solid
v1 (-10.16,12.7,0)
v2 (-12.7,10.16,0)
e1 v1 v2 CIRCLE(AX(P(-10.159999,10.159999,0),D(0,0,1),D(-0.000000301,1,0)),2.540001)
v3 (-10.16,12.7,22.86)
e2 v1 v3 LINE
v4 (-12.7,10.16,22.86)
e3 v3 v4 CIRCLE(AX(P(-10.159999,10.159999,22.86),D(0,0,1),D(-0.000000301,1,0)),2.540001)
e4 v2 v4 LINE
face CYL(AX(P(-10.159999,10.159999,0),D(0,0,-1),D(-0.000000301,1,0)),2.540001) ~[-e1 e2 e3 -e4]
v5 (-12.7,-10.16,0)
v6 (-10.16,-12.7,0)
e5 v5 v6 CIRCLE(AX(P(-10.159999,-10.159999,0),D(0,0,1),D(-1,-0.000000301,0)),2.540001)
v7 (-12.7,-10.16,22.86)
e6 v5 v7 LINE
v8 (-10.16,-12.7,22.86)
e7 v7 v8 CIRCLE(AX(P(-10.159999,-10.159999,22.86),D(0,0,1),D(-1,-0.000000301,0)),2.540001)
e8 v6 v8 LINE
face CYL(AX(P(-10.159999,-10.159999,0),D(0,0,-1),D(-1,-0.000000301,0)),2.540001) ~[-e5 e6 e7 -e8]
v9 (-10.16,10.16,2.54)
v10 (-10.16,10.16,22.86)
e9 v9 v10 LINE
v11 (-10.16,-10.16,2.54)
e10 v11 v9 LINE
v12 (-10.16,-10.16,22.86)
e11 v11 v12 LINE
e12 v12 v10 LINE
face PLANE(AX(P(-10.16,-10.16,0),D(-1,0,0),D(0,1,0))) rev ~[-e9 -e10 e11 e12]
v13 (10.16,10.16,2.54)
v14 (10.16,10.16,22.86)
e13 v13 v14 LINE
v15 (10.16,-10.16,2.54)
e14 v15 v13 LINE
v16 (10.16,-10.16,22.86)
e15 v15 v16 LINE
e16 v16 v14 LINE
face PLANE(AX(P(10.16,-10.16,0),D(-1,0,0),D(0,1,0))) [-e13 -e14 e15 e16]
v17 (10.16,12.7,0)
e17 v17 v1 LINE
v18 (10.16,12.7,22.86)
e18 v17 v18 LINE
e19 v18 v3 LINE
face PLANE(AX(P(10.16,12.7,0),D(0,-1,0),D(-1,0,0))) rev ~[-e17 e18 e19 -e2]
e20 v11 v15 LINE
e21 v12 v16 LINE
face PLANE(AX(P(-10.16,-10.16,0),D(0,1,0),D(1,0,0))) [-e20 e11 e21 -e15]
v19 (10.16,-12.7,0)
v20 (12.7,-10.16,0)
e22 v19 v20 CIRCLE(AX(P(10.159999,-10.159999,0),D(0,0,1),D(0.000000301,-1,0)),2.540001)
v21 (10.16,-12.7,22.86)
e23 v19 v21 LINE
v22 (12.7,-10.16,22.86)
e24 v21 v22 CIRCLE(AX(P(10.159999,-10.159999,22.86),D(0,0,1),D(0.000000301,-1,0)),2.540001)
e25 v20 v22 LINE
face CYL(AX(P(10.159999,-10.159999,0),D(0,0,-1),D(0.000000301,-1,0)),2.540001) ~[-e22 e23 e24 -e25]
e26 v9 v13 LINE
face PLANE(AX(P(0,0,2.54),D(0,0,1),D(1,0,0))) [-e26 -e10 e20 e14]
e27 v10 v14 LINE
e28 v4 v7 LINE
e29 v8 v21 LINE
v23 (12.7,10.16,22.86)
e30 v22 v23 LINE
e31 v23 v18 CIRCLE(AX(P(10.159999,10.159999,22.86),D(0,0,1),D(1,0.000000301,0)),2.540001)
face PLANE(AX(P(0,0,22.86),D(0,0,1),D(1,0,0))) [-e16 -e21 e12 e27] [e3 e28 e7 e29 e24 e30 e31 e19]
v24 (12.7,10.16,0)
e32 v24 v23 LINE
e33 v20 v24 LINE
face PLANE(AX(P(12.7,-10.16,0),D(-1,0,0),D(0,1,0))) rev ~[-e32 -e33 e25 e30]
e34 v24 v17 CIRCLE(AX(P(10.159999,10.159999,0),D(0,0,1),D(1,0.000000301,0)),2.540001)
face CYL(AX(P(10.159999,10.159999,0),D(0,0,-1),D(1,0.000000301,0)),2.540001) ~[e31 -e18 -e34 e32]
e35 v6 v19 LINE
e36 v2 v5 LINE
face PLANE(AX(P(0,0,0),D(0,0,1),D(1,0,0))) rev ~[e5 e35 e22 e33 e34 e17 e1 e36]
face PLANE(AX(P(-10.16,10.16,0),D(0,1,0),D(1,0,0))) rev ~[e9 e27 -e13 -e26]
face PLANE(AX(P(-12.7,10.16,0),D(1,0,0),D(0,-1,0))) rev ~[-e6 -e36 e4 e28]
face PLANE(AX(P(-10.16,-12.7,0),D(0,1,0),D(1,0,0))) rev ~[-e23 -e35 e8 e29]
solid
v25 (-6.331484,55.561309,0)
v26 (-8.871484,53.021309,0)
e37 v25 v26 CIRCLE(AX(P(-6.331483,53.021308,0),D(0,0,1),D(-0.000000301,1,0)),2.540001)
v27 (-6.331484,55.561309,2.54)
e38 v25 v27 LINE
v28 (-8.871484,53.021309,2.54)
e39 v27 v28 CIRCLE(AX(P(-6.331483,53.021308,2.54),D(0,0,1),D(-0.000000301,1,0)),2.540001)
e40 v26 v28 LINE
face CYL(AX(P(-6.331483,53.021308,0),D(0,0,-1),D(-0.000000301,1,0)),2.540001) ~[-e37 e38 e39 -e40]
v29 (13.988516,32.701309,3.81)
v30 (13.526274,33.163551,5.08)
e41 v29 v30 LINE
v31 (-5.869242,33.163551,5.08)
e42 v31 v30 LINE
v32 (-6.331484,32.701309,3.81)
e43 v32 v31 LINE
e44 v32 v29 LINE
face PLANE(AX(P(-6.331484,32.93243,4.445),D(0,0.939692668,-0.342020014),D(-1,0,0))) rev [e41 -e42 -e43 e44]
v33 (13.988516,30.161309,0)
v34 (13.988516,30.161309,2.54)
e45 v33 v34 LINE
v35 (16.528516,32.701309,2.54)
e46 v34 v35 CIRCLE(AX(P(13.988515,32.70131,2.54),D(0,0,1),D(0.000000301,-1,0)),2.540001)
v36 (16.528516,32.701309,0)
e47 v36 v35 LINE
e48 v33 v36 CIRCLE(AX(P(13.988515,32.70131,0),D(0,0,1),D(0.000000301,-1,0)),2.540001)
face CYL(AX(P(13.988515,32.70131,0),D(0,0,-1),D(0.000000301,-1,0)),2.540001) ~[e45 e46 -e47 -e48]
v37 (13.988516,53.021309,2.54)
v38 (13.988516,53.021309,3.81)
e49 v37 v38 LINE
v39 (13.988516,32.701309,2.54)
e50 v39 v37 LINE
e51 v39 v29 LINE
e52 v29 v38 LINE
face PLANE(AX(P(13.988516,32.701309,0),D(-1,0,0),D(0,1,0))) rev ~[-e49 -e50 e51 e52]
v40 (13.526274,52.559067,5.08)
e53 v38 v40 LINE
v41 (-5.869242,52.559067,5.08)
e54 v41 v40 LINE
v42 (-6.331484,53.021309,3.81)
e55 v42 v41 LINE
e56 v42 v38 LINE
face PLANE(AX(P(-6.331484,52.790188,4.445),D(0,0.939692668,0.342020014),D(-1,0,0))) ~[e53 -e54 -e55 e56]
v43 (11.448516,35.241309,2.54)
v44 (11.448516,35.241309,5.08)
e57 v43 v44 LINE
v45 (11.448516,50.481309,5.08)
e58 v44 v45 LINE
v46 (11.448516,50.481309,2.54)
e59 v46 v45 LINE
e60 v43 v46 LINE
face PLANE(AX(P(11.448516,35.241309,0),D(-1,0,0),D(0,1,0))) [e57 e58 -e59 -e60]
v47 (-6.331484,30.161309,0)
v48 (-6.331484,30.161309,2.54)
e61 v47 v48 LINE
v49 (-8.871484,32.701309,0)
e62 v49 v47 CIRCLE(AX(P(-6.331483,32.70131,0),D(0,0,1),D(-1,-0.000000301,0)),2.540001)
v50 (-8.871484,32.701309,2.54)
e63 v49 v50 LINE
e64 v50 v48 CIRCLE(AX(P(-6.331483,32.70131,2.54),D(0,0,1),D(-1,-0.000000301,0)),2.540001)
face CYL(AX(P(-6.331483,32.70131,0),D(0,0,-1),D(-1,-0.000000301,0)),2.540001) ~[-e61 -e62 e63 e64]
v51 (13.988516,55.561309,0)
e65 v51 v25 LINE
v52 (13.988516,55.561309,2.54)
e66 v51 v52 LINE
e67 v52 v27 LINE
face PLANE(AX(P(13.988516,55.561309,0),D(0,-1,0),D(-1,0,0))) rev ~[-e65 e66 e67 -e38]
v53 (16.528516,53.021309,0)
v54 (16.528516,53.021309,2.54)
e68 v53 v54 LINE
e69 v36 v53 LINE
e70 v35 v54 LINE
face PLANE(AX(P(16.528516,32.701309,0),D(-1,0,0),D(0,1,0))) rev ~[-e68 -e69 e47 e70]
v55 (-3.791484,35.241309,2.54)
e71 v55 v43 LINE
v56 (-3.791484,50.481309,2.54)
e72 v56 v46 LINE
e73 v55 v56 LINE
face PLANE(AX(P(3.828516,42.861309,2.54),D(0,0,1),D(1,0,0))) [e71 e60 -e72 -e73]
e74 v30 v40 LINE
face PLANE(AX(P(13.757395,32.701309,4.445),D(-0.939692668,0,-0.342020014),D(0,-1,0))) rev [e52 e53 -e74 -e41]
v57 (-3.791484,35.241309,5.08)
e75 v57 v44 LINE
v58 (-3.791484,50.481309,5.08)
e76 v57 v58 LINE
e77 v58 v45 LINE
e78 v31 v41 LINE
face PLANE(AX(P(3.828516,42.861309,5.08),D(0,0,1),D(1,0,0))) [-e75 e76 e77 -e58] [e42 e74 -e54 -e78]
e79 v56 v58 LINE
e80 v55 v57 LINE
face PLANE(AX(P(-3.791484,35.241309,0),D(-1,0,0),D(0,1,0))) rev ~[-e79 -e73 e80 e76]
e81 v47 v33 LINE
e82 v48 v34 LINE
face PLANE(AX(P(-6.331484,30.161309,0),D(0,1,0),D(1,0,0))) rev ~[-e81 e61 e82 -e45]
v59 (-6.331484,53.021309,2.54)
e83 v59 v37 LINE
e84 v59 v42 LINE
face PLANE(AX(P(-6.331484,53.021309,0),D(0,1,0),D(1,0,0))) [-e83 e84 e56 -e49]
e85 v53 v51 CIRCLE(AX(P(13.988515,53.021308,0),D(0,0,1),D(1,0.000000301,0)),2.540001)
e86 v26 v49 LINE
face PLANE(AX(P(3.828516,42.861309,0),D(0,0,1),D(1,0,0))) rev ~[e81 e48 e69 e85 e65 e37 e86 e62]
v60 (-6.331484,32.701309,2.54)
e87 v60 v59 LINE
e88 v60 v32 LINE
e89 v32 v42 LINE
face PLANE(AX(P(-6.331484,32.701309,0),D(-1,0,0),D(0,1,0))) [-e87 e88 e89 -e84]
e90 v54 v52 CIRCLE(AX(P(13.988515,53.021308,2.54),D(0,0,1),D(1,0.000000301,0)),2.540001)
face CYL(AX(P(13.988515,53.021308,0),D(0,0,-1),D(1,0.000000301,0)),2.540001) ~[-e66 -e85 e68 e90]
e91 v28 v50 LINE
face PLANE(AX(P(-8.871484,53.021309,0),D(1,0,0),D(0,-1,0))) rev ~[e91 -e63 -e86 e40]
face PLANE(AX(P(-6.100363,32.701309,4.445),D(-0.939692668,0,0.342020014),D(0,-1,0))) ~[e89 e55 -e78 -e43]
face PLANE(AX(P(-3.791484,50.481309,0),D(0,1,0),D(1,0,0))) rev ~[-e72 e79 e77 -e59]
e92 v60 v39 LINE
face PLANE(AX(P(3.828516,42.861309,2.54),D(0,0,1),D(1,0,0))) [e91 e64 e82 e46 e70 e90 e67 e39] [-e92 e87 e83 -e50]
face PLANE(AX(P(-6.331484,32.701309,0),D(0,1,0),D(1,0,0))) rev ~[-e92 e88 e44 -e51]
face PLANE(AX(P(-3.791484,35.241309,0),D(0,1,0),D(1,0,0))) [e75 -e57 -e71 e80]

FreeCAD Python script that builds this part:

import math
import FreeCAD as App
import Part
import Sketcher
from FreeCAD import Vector
Q = App.Units.Quantity


def edges_at(feature, points):
    """Names of the edges that pass closest to the given points."""
    edges = feature.Shape.Edges
    near = lambda p: min(range(len(edges)), key=lambda i: edges[i].distToShape(Part.Vertex(*p))[0])
    return sorted({f"Edge{near(p) + 1}" for p in points})


def add_polygon(sketch, points):
    """Adds a closed chain of lines whose ends are joined by coincident constraints."""
    first, n = sketch.GeometryCount, len(points)
    for a, b in zip(points, points[1:] + points[:1]):
        sketch.addGeometry(Part.LineSegment(App.Vector(*a, 0), App.Vector(*b, 0)), False)
    for i in range(n):
        sketch.addConstraint(Sketcher.Constraint("Coincident", first + i, 2, first + (i + 1) % n, 1))

doc = App.newDocument("Part")
params = doc.addObject("Spreadsheet::Sheet", "Params")
for row, (alias, value) in enumerate([
    ("sketch1_radius", "0.1 in"),
    ("sketch1_width", "0.8 in"),
    ("pad1_length", "0.9 in"),
    ("sketch2_width", "0.8 in"),
    ("pad2_length", "0.1 in"),
    ("sketch3_radius", "0.1 in"),
    ("sketch3_width", "0.8 in"),
    ("pad3_length", "0.1 in"),
    ("sketch4_width", "0.8 in"),
    ("sketch4_width2", "0.6 in"),
    ("pad4_length", "0.2 in"),
    ("sketch5_width", "0.6 in"),
    ("pad5_length", "0.1 in"),
    ("chamfer_size", "0.05 in"),
    ("chamfer_size2", "0.462242 mm"),
], start=1):
    params.set(f"A{row}", alias)
    params.set(f"B{row}", "=" + value)
    params.setAlias(f"B{row}", alias)

body = doc.addObject("PartDesign::Body", "Body")

# Sketch on XY plane
sketch1 = body.newObject("Sketcher::SketchObject", "Sketch")
sketch1.AttachmentSupport = (doc.getObject("XY_Plane"), [""])
sketch1.MapMode = "FlatFace"
sketch1.addGeometry(Part.LineSegment(Vector(10.16, 12.7, 0), Vector(-10.16, 12.7, 0)), False)  # 0
sketch1.addGeometry(Part.ArcOfCircle(Part.Circle(Vector(-10.159999, 10.159999, 0), Vector(0, 0, 1), 2.540001), math.radians(90.000017), math.radians(179.999983)), False)  # 1
sketch1.addGeometry(Part.LineSegment(Vector(-12.7, 10.16, 0), Vector(-12.7, -10.16, 0)), False)  # 2
sketch1.addGeometry(Part.ArcOfCircle(Part.Circle(Vector(-10.159999, -10.159999, 0), Vector(0, 0, 1), 2.540001), math.radians(-179.999983), math.radians(-90.000017)), False)  # 3
sketch1.addGeometry(Part.LineSegment(Vector(-10.16, -12.7, 0), Vector(10.16, -12.7, 0)), False)  # 4
sketch1.addGeometry(Part.ArcOfCircle(Part.Circle(Vector(10.159999, -10.159999, 0), Vector(0, 0, 1), 2.540001), math.radians(-89.999983), math.radians(-0.000017)), False)  # 5
sketch1.addGeometry(Part.LineSegment(Vector(12.7, -10.16, 0), Vector(12.7, 10.16, 0)), False)  # 6
sketch1.addGeometry(Part.ArcOfCircle(Part.Circle(Vector(10.159999, 10.159999, 0), Vector(0, 0, 1), 2.540001), math.radians(0.000017), math.radians(89.999983)), False)  # 7
add_polygon(sketch1, [(10.16, -10.16), (-10.16, -10.16), (-10.16, 10.16), (10.16, 10.16)])  # lines 8-11
sketch1.addConstraint([
    Sketcher.Constraint("Tangent", 0, 2, 1, 1),
    Sketcher.Constraint("Tangent", 1, 2, 2, 1),
    Sketcher.Constraint("Tangent", 2, 2, 3, 1),
    Sketcher.Constraint("Tangent", 3, 2, 4, 1),
    Sketcher.Constraint("Tangent", 4, 2, 5, 1),
    Sketcher.Constraint("Tangent", 5, 2, 6, 1),
    Sketcher.Constraint("Tangent", 6, 2, 7, 1),
    Sketcher.Constraint("Tangent", 7, 2, 0, 1),
    Sketcher.Constraint("Horizontal", 0),
    Sketcher.Constraint("Vertical", 2),
    Sketcher.Constraint("Horizontal", 4),
    Sketcher.Constraint("Vertical", 6),
    Sketcher.Constraint("Horizontal", 8),
    Sketcher.Constraint("Vertical", 9),
    Sketcher.Constraint("Horizontal", 10),
    Sketcher.Constraint("Vertical", 11),
    Sketcher.Constraint("Coincident", 8, 2, 3, 3),
    Sketcher.Constraint("Coincident", 9, 2, 1, 3),
    Sketcher.Constraint("Coincident", 10, 2, 7, 3),
    Sketcher.Constraint("Equal", 3, 5),
    Sketcher.Constraint("Symmetric", 1, 3, 5, 3, -1, 1),
    Sketcher.Constraint("Equal", 10, 2),
    Sketcher.Constraint("Radius", 1, Q("0.1 in")),
    Sketcher.Constraint("DistanceX", 0, 2, 0, 1, Q("0.8 in")),
])
sketch1.setExpression("Constraints[26]", "Params.sketch1_radius")
sketch1.setExpression("Constraints[27]", "Params.sketch1_width")
pad1 = body.newObject("PartDesign::Pad", "Pad")
pad1.Profile = sketch1
pad1.setExpression("Length", "Params.pad1_length")

# Sketch on XY plane
sketch2 = body.newObject("Sketcher::SketchObject", "Sketch001")
sketch2.AttachmentSupport = (doc.getObject("XY_Plane"), [""])
sketch2.MapMode = "FlatFace"
add_polygon(sketch2, [(-10.16, 10.16), (-10.16, -10.16), (10.16, -10.16), (10.16, 10.16)])  # lines 0-3
sketch2.addConstraint([
    Sketcher.Constraint("Vertical", 0),
    Sketcher.Constraint("Horizontal", 1),
    Sketcher.Constraint("Vertical", 2),
    Sketcher.Constraint("Horizontal", 3),
    Sketcher.Constraint("Symmetric", 0, 2, 2, 2, -1, 1),
    Sketcher.Constraint("Equal", 3, 0),
    Sketcher.Constraint("DistanceX", 1, 1, 1, 2, Q("0.8 in")),
])
sketch2.setExpression("Constraints[10]", "Params.sketch2_width")
pad2 = body.newObject("PartDesign::Pad", "Pad001")
pad2.Profile = sketch2
pad2.setExpression("Length", "Params.pad2_length")
body2 = doc.addObject("PartDesign::Body", "Body001")

# Sketch on XY plane
sketch3 = body2.newObject("Sketcher::SketchObject", "Sketch002")
sketch3.AttachmentSupport = (doc.getObject("XY_Plane001"), [""])
sketch3.MapMode = "FlatFace"
sketch3.addGeometry(Part.LineSegment(Vector(13.988516, 55.561309, 0), Vector(-6.331484, 55.561309, 0)), False)  # 0
sketch3.addGeometry(Part.ArcOfCircle(Part.Circle(Vector(-6.331483, 53.021308, 0), Vector(0, 0, 1), 2.540001), math.radians(90.000017), math.radians(179.999983)), False)  # 1
sketch3.addGeometry(Part.LineSegment(Vector(-8.871484, 53.021309, 0), Vector(-8.871484, 32.701309, 0)), False)  # 2
sketch3.addGeometry(Part.ArcOfCircle(Part.Circle(Vector(-6.331483, 32.70131, 0), Vector(0, 0, 1), 2.540001), math.radians(-179.999983), math.radians(-90.000017)), False)  # 3
sketch3.addGeometry(Part.LineSegment(Vector(-6.331484, 30.161309, 0), Vector(13.988516, 30.161309, 0)), False)  # 4
sketch3.addGeometry(Part.ArcOfCircle(Part.Circle(Vector(13.988515, 32.70131, 0), Vector(0, 0, 1), 2.540001), math.radians(-89.999983), math.radians(-0.000017)), False)  # 5
sketch3.addGeometry(Part.LineSegment(Vector(16.528516, 32.701309, 0), Vector(16.528516, 53.021309, 0)), False)  # 6
sketch3.addGeometry(Part.ArcOfCircle(Part.Circle(Vector(13.988515, 53.021308, 0), Vector(0, 0, 1), 2.540001), math.radians(0.000017), math.radians(89.999983)), False)  # 7
add_polygon(sketch3, [(13.988516, 32.701309), (-6.331484, 32.701309), (-6.331484, 53.021309), (13.988516, 53.021309)])  # lines 8-11
sketch3.addConstraint([
    Sketcher.Constraint("Tangent", 0, 2, 1, 1),
    Sketcher.Constraint("Tangent", 1, 2, 2, 1),
    Sketcher.Constraint("Tangent", 2, 2, 3, 1),
    Sketcher.Constraint("Tangent", 3, 2, 4, 1),
    Sketcher.Constraint("Tangent", 4, 2, 5, 1),
    Sketcher.Constraint("Tangent", 5, 2, 6, 1),
    Sketcher.Constraint("Tangent", 6, 2, 7, 1),
    Sketcher.Constraint("Tangent", 7, 2, 0, 1),
    Sketcher.Constraint("Horizontal", 0),
    Sketcher.Constraint("Vertical", 2),
    Sketcher.Constraint("Horizontal", 4),
    Sketcher.Constraint("Vertical", 6),
    Sketcher.Constraint("Horizontal", 8),
    Sketcher.Constraint("Vertical", 9),
    Sketcher.Constraint("Horizontal", 10),
    Sketcher.Constraint("Vertical", 11),
    Sketcher.Constraint("Coincident", 8, 2, 3, 3),
    Sketcher.Constraint("Coincident", 9, 2, 1, 3),
    Sketcher.Constraint("Coincident", 10, 2, 7, 3),
    Sketcher.Constraint("Equal", 3, 5),
    Sketcher.Constraint("Equal", 10, 2),
    Sketcher.Constraint("Radius", 1, Q("0.1 in")),
    Sketcher.Constraint("DistanceX", 0, 2, 0, 1, Q("0.8 in")),
    Sketcher.Constraint("DistanceY", -1, 1, 1, 3, 53.021308),
    Sketcher.Constraint("DistanceX", 1, 3, -1, 1, 6.331483),
])
sketch3.setExpression("Constraints[25]", "Params.sketch3_radius")
sketch3.setExpression("Constraints[26]", "Params.sketch3_width")
pad3 = body2.newObject("PartDesign::Pad", "Pad002")
pad3.Profile = sketch3
pad3.setExpression("Length", "Params.pad3_length")

# Sketch on XY plane
sketch4 = body2.newObject("Sketcher::SketchObject", "Sketch003")
sketch4.AttachmentSupport = (doc.getObject("XY_Plane001"), [""])
sketch4.MapMode = "FlatFace"
add_polygon(sketch4, [(-6.331484, 53.021309), (-6.331484, 32.701309), (13.988516, 32.701309), (13.988516, 53.021309)])  # lines 0-3
add_polygon(sketch4, [(11.448516, 35.241309), (-3.791484, 35.241309), (-3.791484, 50.481309), (11.448516, 50.481309)])  # lines 4-7
sketch4.addConstraint([
    Sketcher.Constraint("Vertical", 0),
    Sketcher.Constraint("Horizontal", 1),
    Sketcher.Constraint("Vertical", 2),
    Sketcher.Constraint("Horizontal", 3),
    Sketcher.Constraint("Horizontal", 4),
    Sketcher.Constraint("Vertical", 5),
    Sketcher.Constraint("Horizontal", 6),
    Sketcher.Constraint("Vertical", 7),
    Sketcher.Constraint("Equal", 3, 0),
    Sketcher.Constraint("Equal", 6, 5),
    Sketcher.Constraint("DistanceX", 1, 1, 1, 2, Q("0.8 in")),
    Sketcher.Constraint("DistanceX", 4, 2, 4, 1, Q("0.6 in")),
    Sketcher.Constraint("DistanceX", 0, 2, 4, 2, Q("0.1 in")),
    Sketcher.Constraint("DistanceY", 0, 2, 4, 2, Q("0.1 in")),
    Sketcher.Constraint("DistanceY", -1, 1, 0, 2, 32.701309),
    Sketcher.Constraint("DistanceX", 0, 2, -1, 1, 6.331484),
])
sketch4.setExpression("Constraints[18]", "Params.sketch4_width")
sketch4.setExpression("Constraints[19]", "Params.sketch4_width2")
pad4 = body2.newObject("PartDesign::Pad", "Pad003")
pad4.Profile = sketch4
pad4.setExpression("Length", "Params.pad4_length")

# Sketch on XY plane
sketch5 = body2.newObject("Sketcher::SketchObject", "Sketch004")
sketch5.AttachmentSupport = (doc.getObject("XY_Plane001"), [""])
sketch5.MapMode = "FlatFace"
add_polygon(sketch5, [(-3.791484, 50.481309), (-3.791484, 35.241309), (11.448516, 35.241309), (11.448516, 50.481309)])  # lines 0-3
sketch5.addConstraint([
    Sketcher.Constraint("Vertical", 0),
    Sketcher.Constraint("Horizontal", 1),
    Sketcher.Constraint("Vertical", 2),
    Sketcher.Constraint("Horizontal", 3),
    Sketcher.Constraint("Equal", 3, 0),
    Sketcher.Constraint("DistanceX", 1, 1, 1, 2, Q("0.6 in")),
    Sketcher.Constraint("DistanceY", -1, 1, 0, 2, 35.241309),
    Sketcher.Constraint("DistanceX", 0, 2, -1, 1, 3.791484),
])
sketch5.setExpression("Constraints[9]", "Params.sketch5_width")
pad5 = body2.newObject("PartDesign::Pad", "Pad004")
pad5.Profile = sketch5
pad5.setExpression("Length", "Params.pad5_length")
doc.recompute()

chamfer = body2.newObject("PartDesign::Chamfer", "Chamfer")
chamfer.Base = (pad5, edges_at(pad5, [
    (13.989, 42.861, 5.08),
    (3.829, 32.701, 5.08),
    (3.829, 53.021, 5.08),
    (-6.331, 42.861, 5.08),
]))
chamfer.ChamferType = "Two distances"
chamfer.setExpression("Size", "Params.chamfer_size")
chamfer.setExpression("Size2", "Params.chamfer_size2")

doc.recompute()
